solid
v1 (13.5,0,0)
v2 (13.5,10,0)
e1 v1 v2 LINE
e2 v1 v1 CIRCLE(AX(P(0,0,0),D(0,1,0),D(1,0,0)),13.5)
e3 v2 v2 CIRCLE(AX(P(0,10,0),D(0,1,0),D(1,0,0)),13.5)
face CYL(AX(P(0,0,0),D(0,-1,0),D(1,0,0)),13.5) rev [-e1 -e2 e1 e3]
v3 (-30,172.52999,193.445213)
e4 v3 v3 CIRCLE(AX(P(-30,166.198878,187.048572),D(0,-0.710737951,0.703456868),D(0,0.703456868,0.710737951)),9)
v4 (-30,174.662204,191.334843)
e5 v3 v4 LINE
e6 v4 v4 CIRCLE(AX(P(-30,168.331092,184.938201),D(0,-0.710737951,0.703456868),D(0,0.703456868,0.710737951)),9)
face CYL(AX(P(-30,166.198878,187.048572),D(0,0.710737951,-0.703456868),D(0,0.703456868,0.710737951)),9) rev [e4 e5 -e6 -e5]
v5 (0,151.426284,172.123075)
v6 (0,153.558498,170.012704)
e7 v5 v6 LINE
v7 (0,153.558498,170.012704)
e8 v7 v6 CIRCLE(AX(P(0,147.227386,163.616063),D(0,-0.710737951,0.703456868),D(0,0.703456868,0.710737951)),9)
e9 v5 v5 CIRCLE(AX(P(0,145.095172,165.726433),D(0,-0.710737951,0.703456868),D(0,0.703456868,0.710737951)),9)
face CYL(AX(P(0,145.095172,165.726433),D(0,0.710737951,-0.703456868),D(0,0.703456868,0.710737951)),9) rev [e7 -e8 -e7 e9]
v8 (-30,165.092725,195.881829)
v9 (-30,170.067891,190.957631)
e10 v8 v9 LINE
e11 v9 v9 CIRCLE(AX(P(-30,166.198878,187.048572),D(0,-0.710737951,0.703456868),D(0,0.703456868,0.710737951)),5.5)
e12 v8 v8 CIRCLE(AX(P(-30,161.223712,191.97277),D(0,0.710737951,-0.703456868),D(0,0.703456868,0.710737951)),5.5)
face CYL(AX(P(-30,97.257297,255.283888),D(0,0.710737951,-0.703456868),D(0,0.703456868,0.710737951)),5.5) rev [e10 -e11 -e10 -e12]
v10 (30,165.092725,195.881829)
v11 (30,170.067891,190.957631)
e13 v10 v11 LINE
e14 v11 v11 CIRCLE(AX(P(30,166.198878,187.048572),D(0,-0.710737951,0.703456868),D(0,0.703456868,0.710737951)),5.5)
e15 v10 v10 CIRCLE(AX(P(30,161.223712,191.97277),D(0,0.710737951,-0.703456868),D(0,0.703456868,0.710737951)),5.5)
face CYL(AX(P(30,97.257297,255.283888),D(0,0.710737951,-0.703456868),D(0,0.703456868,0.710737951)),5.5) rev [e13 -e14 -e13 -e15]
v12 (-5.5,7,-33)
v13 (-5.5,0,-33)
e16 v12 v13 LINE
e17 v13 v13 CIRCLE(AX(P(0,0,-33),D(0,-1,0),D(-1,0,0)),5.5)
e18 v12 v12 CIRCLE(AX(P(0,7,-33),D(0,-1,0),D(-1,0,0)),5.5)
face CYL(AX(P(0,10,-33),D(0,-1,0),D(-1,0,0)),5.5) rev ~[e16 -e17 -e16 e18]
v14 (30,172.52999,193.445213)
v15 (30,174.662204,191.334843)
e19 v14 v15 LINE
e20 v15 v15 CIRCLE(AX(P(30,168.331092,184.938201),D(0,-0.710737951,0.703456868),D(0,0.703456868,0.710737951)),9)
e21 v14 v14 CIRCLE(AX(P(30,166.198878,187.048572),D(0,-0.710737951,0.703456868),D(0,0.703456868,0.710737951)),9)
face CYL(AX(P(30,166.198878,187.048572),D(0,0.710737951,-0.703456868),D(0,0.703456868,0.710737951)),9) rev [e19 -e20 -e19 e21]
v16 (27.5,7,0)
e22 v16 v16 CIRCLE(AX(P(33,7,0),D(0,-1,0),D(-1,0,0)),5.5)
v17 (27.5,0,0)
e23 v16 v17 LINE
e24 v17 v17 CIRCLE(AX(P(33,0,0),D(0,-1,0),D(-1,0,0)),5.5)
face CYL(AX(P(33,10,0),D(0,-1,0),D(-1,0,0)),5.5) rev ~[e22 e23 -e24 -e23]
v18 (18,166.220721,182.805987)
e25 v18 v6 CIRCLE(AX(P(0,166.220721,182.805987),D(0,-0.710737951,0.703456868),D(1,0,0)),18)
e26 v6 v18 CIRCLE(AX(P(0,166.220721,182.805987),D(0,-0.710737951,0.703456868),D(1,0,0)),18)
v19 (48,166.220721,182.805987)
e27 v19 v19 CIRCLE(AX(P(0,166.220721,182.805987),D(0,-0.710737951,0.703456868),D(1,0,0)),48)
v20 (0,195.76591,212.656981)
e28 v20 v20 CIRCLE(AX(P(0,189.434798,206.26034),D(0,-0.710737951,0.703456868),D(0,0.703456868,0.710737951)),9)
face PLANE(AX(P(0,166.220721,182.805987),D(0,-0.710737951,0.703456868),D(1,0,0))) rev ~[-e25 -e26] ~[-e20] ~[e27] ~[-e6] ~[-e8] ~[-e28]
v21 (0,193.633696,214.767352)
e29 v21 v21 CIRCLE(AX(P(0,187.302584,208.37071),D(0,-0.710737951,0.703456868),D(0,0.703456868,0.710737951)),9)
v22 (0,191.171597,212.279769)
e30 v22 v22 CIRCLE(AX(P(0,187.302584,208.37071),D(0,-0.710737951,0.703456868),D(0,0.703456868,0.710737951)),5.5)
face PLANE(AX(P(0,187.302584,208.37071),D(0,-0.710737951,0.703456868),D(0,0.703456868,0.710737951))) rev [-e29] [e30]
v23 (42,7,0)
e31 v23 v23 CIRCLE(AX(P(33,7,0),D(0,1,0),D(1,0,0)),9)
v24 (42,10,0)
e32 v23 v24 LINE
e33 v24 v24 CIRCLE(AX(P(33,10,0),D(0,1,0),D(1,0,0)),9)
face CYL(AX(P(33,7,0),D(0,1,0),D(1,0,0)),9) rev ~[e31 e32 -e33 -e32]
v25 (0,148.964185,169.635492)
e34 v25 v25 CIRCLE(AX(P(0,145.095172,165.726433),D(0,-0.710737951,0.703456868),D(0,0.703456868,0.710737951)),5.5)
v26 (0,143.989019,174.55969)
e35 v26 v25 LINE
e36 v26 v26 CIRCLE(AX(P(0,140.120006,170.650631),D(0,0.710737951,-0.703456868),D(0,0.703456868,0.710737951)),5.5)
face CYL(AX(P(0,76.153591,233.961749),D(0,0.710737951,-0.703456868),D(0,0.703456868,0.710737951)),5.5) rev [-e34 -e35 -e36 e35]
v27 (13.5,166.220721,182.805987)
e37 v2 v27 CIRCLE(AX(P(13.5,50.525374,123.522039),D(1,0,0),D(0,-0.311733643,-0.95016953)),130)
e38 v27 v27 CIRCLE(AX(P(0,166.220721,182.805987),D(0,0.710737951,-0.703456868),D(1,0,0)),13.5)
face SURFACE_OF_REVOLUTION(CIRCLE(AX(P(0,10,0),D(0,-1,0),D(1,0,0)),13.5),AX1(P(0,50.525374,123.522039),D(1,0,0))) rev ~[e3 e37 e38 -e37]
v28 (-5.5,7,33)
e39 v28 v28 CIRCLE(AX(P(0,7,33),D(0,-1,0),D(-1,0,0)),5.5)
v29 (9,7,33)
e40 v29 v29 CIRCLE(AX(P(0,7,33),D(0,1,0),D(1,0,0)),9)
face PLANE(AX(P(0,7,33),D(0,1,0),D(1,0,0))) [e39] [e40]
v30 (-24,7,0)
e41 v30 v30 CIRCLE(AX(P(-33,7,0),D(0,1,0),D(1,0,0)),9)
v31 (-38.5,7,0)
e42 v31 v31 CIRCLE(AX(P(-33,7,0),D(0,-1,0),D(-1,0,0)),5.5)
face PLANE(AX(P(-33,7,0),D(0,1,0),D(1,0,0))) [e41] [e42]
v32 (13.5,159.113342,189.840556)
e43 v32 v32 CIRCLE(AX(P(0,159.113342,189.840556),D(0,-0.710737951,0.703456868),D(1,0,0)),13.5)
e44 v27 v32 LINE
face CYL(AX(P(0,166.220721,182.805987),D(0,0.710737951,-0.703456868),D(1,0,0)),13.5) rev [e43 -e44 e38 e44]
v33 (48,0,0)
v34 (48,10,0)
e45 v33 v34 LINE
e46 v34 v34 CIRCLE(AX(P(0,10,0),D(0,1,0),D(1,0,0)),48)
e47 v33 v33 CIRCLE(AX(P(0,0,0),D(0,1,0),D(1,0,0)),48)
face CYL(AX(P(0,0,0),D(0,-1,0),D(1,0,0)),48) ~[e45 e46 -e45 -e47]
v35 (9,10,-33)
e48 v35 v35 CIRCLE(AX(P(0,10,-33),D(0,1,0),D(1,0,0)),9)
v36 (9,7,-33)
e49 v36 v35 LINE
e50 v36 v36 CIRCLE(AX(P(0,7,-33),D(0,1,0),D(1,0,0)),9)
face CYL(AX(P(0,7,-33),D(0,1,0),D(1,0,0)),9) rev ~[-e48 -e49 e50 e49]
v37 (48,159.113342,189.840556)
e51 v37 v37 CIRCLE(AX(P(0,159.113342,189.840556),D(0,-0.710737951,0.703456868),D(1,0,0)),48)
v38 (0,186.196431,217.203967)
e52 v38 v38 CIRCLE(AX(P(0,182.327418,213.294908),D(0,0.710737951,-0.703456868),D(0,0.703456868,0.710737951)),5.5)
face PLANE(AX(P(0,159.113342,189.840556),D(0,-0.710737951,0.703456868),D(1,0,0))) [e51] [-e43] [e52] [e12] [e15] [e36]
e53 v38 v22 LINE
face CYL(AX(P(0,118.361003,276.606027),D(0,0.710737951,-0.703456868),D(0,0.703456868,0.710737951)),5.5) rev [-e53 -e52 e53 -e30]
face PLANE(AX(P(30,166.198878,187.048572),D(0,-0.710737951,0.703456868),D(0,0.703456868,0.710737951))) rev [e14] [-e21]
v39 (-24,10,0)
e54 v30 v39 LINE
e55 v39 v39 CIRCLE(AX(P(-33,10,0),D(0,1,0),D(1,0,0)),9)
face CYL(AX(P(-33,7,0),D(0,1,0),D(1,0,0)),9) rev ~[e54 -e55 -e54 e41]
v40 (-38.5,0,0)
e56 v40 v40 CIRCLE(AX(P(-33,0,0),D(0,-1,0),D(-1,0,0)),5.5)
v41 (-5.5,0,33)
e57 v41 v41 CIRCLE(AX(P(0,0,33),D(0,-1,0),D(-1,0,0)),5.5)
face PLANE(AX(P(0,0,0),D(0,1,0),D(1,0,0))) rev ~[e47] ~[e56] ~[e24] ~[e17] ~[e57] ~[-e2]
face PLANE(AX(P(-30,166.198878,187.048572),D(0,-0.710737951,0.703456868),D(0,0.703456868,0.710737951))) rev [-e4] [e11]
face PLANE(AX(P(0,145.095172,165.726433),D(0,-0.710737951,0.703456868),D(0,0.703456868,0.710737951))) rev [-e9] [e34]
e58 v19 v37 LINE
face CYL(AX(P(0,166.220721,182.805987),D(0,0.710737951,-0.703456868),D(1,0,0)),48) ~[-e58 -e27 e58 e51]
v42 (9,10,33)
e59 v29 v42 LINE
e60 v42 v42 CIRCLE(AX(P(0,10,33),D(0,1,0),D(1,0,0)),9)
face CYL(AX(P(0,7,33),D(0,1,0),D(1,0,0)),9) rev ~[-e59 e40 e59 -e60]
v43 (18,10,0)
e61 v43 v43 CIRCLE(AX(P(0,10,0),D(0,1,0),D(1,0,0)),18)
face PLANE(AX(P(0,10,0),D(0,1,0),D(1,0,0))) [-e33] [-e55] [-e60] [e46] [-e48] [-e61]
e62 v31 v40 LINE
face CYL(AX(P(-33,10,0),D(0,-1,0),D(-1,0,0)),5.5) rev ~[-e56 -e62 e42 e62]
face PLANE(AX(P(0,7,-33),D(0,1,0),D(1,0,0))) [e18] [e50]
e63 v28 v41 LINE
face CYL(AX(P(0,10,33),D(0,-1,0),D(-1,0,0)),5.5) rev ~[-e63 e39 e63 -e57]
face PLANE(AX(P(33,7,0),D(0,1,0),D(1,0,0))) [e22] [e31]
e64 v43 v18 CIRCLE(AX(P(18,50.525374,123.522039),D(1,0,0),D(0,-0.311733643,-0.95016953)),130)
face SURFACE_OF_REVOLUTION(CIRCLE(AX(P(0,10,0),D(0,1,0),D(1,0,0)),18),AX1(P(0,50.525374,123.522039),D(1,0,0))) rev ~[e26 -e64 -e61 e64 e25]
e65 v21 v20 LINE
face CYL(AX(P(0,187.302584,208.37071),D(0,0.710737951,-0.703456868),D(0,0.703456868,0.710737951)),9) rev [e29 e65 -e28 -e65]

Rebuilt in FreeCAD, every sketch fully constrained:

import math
import FreeCAD as App
import Part
import Sketcher

V = App.Vector

doc = App.newDocument("Part")
body = doc.addObject("PartDesign::Body", "Body")

sketch1 = body.newObject("Sketcher::SketchObject", "Sketch")
sketch1.AttachmentSupport = (doc.getObject("XZ_Plane"), [""])
sketch1.MapMode = "FlatFace"
sketch1.addGeometry([
    Part.Circle(V(0, 0, 0), V(0, 0, 1), 48),
    Part.Circle(V(0, 0, 0), V(0, 0, 1), 14),
], False)
sketch1.addConstraint([
    Sketcher.Constraint("Coincident", 0, 3, -1, 1),
    Sketcher.Constraint("Coincident", 1, 3, -1, 1),
    Sketcher.Constraint("Diameter", 0, 96.0),
    Sketcher.Constraint("Diameter", 1, 27.0),
])
pad1 = body.newObject("PartDesign::Pad", "Pad")
pad1.Profile = sketch1
pad1.Length = 10
pad1.Reversed = True

sketch2 = body.newObject("Sketcher::SketchObject", "Sketch001")
sketch2.AttachmentSupport = (doc.getObject("XZ_Plane"), [""])
sketch2.MapMode = "FlatFace"
sketch2.AttachmentOffset = App.Placement(V(0, 0, -10), App.Rotation())
sketch2.addGeometry([
    Part.Circle(V(-33, 0, 0), V(0, 0, 1), 6),
    Part.Circle(V(0, -33, 0), V(0, 0, 1), 6),
    Part.Circle(V(33, 0, 0), V(0, 0, 1), 6),
    Part.Circle(V(0, 33, 0), V(0, 0, 1), 6),
], False)
sketch2.addConstraint([
    Sketcher.Constraint("Equal", 0, 1),
    Sketcher.Constraint("Equal", 1, 2),
    Sketcher.Constraint("Equal", 2, 3),
    Sketcher.Constraint("Symmetric", 0, 3, 2, 3, -1, 1),
    Sketcher.Constraint("Symmetric", 1, 3, 3, 3, -1, 1),
    Sketcher.Constraint("PointOnObject", 0, 3, -1),
    Sketcher.Constraint("PointOnObject", 1, 3, -2),
    Sketcher.Constraint("Diameter", 0, 11.0),
    Sketcher.Constraint("DistanceX", 0, 3, -1, 1, 33.0),
    Sketcher.Constraint("DistanceY", 1, 3, -1, 1, 33.0),
])
doc.recompute()
hole = body.newObject("PartDesign::Hole", "Hole")
hole.Profile = sketch2
hole.ThreadType = "None"
hole.Diameter = 11
hole.DepthType = "Dimension"
hole.Depth = 100
hole.DrillPoint = "Angled"
hole.DrillPointAngle = 118
hole.HoleCutType = "Counterbore"
hole.HoleCutDiameter = 18
hole.HoleCutDepth = 3
hole.Reversed = True

sketch3 = body.newObject("Sketcher::SketchObject", "Sketch002")
sketch3.AttachmentSupport = (doc.getObject("XZ_Plane"), [""])
sketch3.MapMode = "FlatFace"
sketch3.AttachmentOffset = App.Placement(V(0, 0, -10), App.Rotation())
sketch3.addGeometry([
    Part.Circle(V(0, 0, 0), V(0, 0, 1), 18),
    Part.Circle(V(0, 0, 0), V(0, 0, 1), 14),
], False)
sketch3.addConstraint([
    Sketcher.Constraint("Coincident", 0, 3, -1, 1),
    Sketcher.Constraint("Coincident", 1, 3, -1, 1),
    Sketcher.Constraint("Diameter", 0, 36.0),
    Sketcher.Constraint("Diameter", 1, 27.0),
])

sketch4 = body.newObject("Sketcher::SketchObject", "Sketch003")
sketch4.AttachmentSupport = (doc.getObject("YZ_Plane"), [""])
sketch4.MapMode = "FlatFace"
sketch4.addGeometry(Part.ArcOfCircle(Part.Circle(V(51, 124, 0), V(0, 0, 1), 130), math.radians(-108), math.radians(27)), False)
sketch4.addConstraint([
    Sketcher.Constraint("PointOnObject", 0, 1, -1),
    Sketcher.Constraint("Radius", 0, 130.0),
    Sketcher.Constraint("DistanceX", -1, 1, 0, 1, 10.0),
    Sketcher.Constraint("DistanceY", -1, 1, 0, 3, 123.522039),
    Sketcher.Constraint("DistanceX", -1, 1, 0, 2, 166.220721),
])
doc.recompute()

additivepipe = body.newObject("PartDesign::AdditivePipe", "AdditivePipe")
additivepipe.Profile = sketch3
additivepipe.Spine = (sketch4, ["Edge1"])

sketch5 = body.newObject("Sketcher::SketchObject", "Sketch004")
sketch5.Placement = App.Placement(V(0, -7.432011, 7.355874), App.Rotation(V(1, 0, 0), V(0, 0.703456868, 0.710737951), V(0, -0.710737951, 0.703456868), "ZXY"))
sketch5.addGeometry([
    Part.Circle(V(0, 247, 0), V(0, 0, 1), 48),
    Part.Circle(V(0, 247, 0), V(0, 0, 1), 14),
], False)
sketch5.addConstraint([
    Sketcher.Constraint("Coincident", 1, 3, 0, 3),
    Sketcher.Constraint("PointOnObject", 0, 3, -2),
    Sketcher.Constraint("Diameter", 0, 96.0),
    Sketcher.Constraint("Diameter", 1, 27.0),
    Sketcher.Constraint("DistanceY", -1, 1, 0, 3, 246.856261),
])
pad2 = body.newObject("PartDesign::Pad", "Pad001")
pad2.Profile = sketch5
pad2.Length = 10

sketch6 = body.newObject("Sketcher::SketchObject", "Sketch005")
sketch6.AttachmentSupport = (doc.getObject("YZ_Plane"), [""])
sketch6.MapMode = "FlatFace"
sketch6.AttachmentOffset = App.Placement(V(0, 0, 30), App.Rotation())
sketch6.addGeometry([
    Part.LineSegment(V(94.9, 257.6, 0), V(168.3, 184.9, 0)),
    Part.LineSegment(V(168.3, 184.9, 0), V(174.7, 191.3, 0)),
    Part.LineSegment(V(174.7, 191.3, 0), V(172.5, 193.4, 0)),
    Part.LineSegment(V(172.5, 193.4, 0), V(170.1, 191, 0)),
    Part.LineSegment(V(170.1, 191, 0), V(101.1, 259.2, 0)),
    Part.LineSegment(V(101.1, 259.2, 0), V(94.9, 257.6, 0)),
], False)
sketch6.addGeometry(Part.LineSegment(V(168.3, 184.9, 0), V(94.9, 257.6, 0)), True)
sketch6.addConstraint([
    Sketcher.Constraint("Coincident", 0, 2, 1, 1),
    Sketcher.Constraint("Coincident", 1, 2, 2, 1),
    Sketcher.Constraint("Coincident", 2, 2, 3, 1),
    Sketcher.Constraint("Coincident", 3, 2, 4, 1),
    Sketcher.Constraint("Coincident", 4, 2, 5, 1),
    Sketcher.Constraint("Coincident", 5, 2, 0, 1),
    Sketcher.Constraint("Coincident", 6, 1, 0, 2),
    Sketcher.Constraint("Coincident", 6, 2, 5, 2),
    Sketcher.Constraint("Perpendicular", 0, 1),
    Sketcher.Constraint("Perpendicular", 1, 2),
    Sketcher.Constraint("Perpendicular", 2, 3),
    Sketcher.Constraint("Perpendicular", 3, 4),
    Sketcher.Constraint("Distance", 1, 9.0),
    Sketcher.Constraint("Distance", 2, 3.0),
    Sketcher.Constraint("Distance", 4, 97.0),
    Sketcher.Constraint("Distance", 3, 3.5),
    Sketcher.Constraint("DistanceY", -1, 1, 0, 2, 184.938201),
    Sketcher.Constraint("DistanceX", 3, 2, 2, 2, 2.462099),
    Sketcher.Constraint("DistanceX", -1, 1, 0, 2, 168.331092),
    Sketcher.Constraint("DistanceY", 5, 2, 4, 2, 1.584321),
])
groove = body.newObject("PartDesign::Groove", "Groove")
groove.Profile = sketch6
groove.ReferenceAxis = (sketch6, ["Axis0"])
groove.Angle = 360
doc.recompute()

datumline = body.newObject("PartDesign::Line", "DatumLine")
datumline.Placement = App.Placement(V(0, 0, 0), App.Rotation(V(0, 0, 1), V(-0.707106781, 0.497419122, 0.502567625)))
linearpattern = body.newObject("PartDesign::LinearPattern", "LinearPattern")
linearpattern.Originals = [groove]
linearpattern.Direction = (datumline, [""])
linearpattern.Mode = "offset"
linearpattern.Offset = 42.426407
linearpattern.Occurrences = 2
body.Tip = linearpattern
doc.recompute()

linearpattern2 = body.newObject("PartDesign::LinearPattern", "LinearPattern001")
linearpattern2.Originals = [groove]
linearpattern2.Direction = (doc.getObject("X_Axis"), [""])
linearpattern2.Mode = "offset"
linearpattern2.Offset = 60
linearpattern2.Occurrences = 2
linearpattern2.Reversed = True
body.Tip = linearpattern2
doc.recompute()

datumline2 = body.newObject("PartDesign::Line", "DatumLine001")
datumline2.Placement = App.Placement(V(0, 0, 0), App.Rotation(V(0, 0, 1), V(-0.707106781, -0.497419122, -0.502567625)))
linearpattern3 = body.newObject("PartDesign::LinearPattern", "LinearPattern002")
linearpattern3.Originals = [groove]
linearpattern3.Direction = (datumline2, [""])
linearpattern3.Mode = "offset"
linearpattern3.Offset = 42.426407
linearpattern3.Occurrences = 2
body.Tip = linearpattern3

doc.recompute()
